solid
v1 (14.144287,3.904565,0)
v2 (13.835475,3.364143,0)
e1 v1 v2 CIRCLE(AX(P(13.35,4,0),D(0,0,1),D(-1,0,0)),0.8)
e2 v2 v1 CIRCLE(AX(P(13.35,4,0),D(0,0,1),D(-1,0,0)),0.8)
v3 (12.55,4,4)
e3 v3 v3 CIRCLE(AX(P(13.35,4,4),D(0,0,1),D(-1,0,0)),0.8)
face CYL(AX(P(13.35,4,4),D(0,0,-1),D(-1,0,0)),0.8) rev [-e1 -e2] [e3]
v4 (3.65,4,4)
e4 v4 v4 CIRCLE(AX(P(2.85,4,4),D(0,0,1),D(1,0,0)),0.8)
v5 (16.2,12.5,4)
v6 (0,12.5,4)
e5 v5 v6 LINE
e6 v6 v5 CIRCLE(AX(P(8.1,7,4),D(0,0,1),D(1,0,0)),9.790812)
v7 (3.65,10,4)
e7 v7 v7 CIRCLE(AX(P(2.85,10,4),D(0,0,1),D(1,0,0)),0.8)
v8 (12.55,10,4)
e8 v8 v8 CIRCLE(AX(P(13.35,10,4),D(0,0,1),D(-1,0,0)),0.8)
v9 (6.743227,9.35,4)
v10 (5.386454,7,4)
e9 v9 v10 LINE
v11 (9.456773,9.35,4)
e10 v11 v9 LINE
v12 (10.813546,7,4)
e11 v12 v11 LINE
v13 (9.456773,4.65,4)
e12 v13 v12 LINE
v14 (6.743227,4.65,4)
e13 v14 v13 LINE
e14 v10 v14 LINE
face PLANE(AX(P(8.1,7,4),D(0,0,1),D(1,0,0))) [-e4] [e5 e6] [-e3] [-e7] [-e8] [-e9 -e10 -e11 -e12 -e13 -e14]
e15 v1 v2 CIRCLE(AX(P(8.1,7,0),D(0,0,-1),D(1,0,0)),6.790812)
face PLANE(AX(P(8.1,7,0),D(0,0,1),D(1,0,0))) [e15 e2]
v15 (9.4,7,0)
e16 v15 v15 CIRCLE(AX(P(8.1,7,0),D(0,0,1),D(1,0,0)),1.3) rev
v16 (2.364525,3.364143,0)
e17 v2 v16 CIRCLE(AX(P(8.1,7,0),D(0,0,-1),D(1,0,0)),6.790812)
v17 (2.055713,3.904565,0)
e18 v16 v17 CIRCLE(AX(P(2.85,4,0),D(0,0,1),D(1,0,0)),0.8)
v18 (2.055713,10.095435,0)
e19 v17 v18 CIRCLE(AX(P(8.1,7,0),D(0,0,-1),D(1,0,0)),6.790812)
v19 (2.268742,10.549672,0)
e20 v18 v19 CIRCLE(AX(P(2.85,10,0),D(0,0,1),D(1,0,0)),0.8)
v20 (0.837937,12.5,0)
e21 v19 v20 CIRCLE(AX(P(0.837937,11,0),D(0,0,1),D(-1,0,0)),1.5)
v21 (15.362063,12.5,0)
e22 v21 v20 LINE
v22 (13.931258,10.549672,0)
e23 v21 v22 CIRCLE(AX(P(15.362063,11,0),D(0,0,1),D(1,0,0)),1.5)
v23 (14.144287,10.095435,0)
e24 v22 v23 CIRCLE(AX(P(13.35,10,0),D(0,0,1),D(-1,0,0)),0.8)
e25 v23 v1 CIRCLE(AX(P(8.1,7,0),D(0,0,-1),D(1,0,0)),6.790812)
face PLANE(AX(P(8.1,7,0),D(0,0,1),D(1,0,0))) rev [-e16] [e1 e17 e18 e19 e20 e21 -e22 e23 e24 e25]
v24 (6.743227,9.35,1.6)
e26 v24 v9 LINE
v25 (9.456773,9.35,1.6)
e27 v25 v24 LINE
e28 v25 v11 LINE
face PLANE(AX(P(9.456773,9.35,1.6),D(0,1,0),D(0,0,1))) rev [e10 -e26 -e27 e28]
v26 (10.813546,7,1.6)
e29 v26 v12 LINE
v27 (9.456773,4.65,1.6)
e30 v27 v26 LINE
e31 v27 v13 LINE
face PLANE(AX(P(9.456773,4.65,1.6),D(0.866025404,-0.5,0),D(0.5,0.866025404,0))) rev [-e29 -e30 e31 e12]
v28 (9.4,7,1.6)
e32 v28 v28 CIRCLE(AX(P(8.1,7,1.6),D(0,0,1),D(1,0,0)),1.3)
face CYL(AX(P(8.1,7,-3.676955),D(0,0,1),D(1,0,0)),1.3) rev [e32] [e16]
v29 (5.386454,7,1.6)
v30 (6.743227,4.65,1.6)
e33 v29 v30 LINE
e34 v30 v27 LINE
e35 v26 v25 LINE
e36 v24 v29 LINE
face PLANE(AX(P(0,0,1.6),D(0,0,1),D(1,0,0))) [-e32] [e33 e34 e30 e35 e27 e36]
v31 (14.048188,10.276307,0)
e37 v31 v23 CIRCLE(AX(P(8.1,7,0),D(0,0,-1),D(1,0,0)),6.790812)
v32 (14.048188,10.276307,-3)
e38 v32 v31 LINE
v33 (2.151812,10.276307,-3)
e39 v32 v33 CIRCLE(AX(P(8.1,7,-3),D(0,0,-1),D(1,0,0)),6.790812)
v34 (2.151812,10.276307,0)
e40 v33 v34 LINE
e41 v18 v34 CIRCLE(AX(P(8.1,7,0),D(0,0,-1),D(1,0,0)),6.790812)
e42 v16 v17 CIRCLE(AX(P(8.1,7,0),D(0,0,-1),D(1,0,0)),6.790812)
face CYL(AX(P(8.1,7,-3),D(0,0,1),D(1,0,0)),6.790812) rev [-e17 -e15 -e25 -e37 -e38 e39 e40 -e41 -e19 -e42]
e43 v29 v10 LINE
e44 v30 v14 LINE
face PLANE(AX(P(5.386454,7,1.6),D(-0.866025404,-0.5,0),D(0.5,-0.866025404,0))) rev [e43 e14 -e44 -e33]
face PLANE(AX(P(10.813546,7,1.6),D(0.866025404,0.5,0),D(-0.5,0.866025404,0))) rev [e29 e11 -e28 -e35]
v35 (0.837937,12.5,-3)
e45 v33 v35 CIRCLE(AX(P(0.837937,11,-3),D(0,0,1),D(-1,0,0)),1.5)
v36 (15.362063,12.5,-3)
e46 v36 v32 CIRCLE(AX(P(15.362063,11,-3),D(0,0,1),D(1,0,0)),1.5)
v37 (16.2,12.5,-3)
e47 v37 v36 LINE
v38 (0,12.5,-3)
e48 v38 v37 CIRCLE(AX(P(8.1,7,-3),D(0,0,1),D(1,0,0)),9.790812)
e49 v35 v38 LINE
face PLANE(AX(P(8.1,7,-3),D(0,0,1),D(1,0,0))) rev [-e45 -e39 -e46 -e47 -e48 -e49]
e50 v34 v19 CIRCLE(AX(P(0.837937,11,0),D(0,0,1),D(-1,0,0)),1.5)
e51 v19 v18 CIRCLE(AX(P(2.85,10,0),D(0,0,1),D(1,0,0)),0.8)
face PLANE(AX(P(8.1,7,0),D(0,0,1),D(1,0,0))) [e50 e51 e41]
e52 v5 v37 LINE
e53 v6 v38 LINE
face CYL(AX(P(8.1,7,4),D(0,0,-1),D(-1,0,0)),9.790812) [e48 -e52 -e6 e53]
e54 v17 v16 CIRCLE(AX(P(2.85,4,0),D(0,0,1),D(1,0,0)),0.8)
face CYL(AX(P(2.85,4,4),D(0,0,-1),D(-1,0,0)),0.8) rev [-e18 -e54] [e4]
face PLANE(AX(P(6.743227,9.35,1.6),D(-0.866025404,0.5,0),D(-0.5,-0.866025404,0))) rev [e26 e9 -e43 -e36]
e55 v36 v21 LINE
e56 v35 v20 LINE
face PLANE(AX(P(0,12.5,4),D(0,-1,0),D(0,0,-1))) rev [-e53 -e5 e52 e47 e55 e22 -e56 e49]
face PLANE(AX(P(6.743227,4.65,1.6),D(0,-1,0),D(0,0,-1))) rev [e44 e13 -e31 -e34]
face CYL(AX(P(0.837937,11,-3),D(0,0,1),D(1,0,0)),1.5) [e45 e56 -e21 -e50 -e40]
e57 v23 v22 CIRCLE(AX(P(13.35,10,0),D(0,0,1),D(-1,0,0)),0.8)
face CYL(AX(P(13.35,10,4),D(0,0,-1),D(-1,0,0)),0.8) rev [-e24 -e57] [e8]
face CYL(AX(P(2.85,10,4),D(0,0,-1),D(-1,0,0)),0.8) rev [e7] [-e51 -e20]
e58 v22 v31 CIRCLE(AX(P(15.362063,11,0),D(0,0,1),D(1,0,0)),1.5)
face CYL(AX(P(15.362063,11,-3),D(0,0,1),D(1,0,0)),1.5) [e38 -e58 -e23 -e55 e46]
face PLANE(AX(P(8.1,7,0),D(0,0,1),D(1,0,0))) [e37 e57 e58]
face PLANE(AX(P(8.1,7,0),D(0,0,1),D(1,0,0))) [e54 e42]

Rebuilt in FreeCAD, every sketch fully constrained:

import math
import FreeCAD as App
import Part
import Sketcher

V = App.Vector
Q = App.Units.Quantity


def add_polygon(sketch, points):
    """Adds a closed chain of lines whose ends are joined by coincident constraints."""
    first, n = sketch.GeometryCount, len(points)
    for a, b in zip(points, points[1:] + points[:1]):
        sketch.addGeometry(Part.LineSegment(App.Vector(*a, 0), App.Vector(*b, 0)), False)
    for i in range(n):
        sketch.addConstraint(Sketcher.Constraint("Coincident", first + i, 2, first + (i + 1) % n, 1))

doc = App.newDocument("Part")
body = doc.addObject("PartDesign::Body", "Body")

sketch1 = body.newObject("Sketcher::SketchObject", "Sketch")
sketch1.AttachmentSupport = (doc.getObject("XY_Plane"), [""])
sketch1.MapMode = "FlatFace"
sketch1.addGeometry([
    Part.LineSegment(V(16.2, 12.5, 0), V(0, 12.5, 0)),
    Part.ArcOfCircle(Part.Circle(V(8.1, 7, 0), V(0, 0, 1), 9.8), math.radians(146), math.radians(394)),
    Part.Circle(V(13.3, 4, 0), V(0, 0, 1), 0.8),
    Part.Circle(V(2.9, 4, 0), V(0, 0, 1), 0.8),
    Part.Circle(V(13.3, 10, 0), V(0, 0, 1), 0.8),
    Part.Circle(V(2.9, 10, 0), V(0, 0, 1), 0.8),
], False)
sketch1.addConstraint([
    Sketcher.Constraint("Coincident", 0, 1, 1, 2),
    Sketcher.Constraint("Coincident", 1, 1, 0, 2),
    Sketcher.Constraint("Horizontal", 0),
    Sketcher.Constraint("Equal", 2, 3),
    Sketcher.Constraint("Equal", 3, 4),
    Sketcher.Constraint("Equal", 4, 5),
    Sketcher.Constraint("PointOnObject", 1, 1, -2),
    Sketcher.Constraint("Horizontal", 2, 3, 3, 3),
    Sketcher.Constraint("Horizontal", 4, 3, 5, 3),
    Sketcher.Constraint("Vertical", 2, 3, 4, 3),
    Sketcher.Constraint("Vertical", 3, 3, 5, 3),
    Sketcher.Constraint("Diameter", 2, 1.6),
    Sketcher.Constraint("DistanceX", 0, 2, 0, 1, 16.2),
    Sketcher.Constraint("DistanceY", -1, 1, 1, 3, 7.0),
    Sketcher.Constraint("DistanceY", -1, 1, 2, 3, 4.0),
    Sketcher.Constraint("DistanceY", -1, 1, 4, 3, 10.0),
    Sketcher.Constraint("DistanceY", -1, 1, 0, 1, 12.5),
    Sketcher.Constraint("DistanceX", 3, 3, 2, 3, 10.5),
    Sketcher.Constraint("DistanceX", -1, 1, 2, 3, 13.35),
])
pad1 = body.newObject("PartDesign::Pad", "Pad")
pad1.Profile = sketch1
pad1.Length = 4

sketch2 = body.newObject("Sketcher::SketchObject", "Sketch001")
sketch2.AttachmentSupport = (doc.getObject("XY_Plane"), [""])
sketch2.MapMode = "FlatFace"
sketch2.AttachmentOffset = App.Placement(V(0, 0, 4), App.Rotation())
add_polygon(sketch2, [(10.8, 7), (9.5, 9.3), (6.7, 9.3), (5.4, 7), (6.7, 4.7), (9.5, 4.7)])
sketch2.addConstraint([
    Sketcher.Constraint("Horizontal", 1),
    Sketcher.Constraint("Horizontal", 4),
    Sketcher.Constraint("Parallel", 0, 3),
    Sketcher.Constraint("Parallel", 2, 5),
    Sketcher.Constraint("Horizontal", 2, 2, 5, 2),
    Sketcher.Constraint("Vertical", 1, 2, 3, 2),
    Sketcher.Constraint("Vertical", 0, 2, 4, 2),
    Sketcher.Constraint("Angle", 0, Q("120 deg")),
    Sketcher.Constraint("DistanceY", -1, 1, 2, 2, 7.0),
    Sketcher.Constraint("DistanceY", 3, 2, 1, 2, 4.7),
    Sketcher.Constraint("DistanceX", 1, 2, 1, 1, 2.713546),
    Sketcher.Constraint("DistanceX", -1, 1, 0, 2, 9.456773),
])
pocket1 = body.newObject("PartDesign::Pocket", "Pocket")
pocket1.Profile = sketch2
pocket1.Length = 2.4

sketch3 = body.newObject("Sketcher::SketchObject", "Sketch002")
sketch3.AttachmentSupport = (doc.getObject("XY_Plane"), [""])
sketch3.MapMode = "FlatFace"
sketch3.AttachmentOffset = App.Placement(V(0, 0, 4), App.Rotation())
sketch3.addGeometry(Part.Circle(V(8.1, 7, 0), V(0, 0, 1), 1.3), False)
sketch3.addConstraint([
    Sketcher.Constraint("Diameter", 0, 2.6),
    Sketcher.Constraint("DistanceY", -1, 1, 0, 3, 7.0),
    Sketcher.Constraint("DistanceX", -1, 1, 0, 3, 8.1),
])
pocket2 = body.newObject("PartDesign::Pocket", "Pocket001")
pocket2.Profile = sketch3
pocket2.Length = 4

sketch4 = body.newObject("Sketcher::SketchObject", "Sketch003")
sketch4.AttachmentSupport = (doc.getObject("XY_Plane"), [""])
sketch4.MapMode = "FlatFace"
sketch4.addGeometry([
    Part.LineSegment(V(16.2, 12.5, 0), V(15.4, 12.5, 0)),
    Part.ArcOfCircle(Part.Circle(V(15.4, 11, 0), V(0, 0, 1), 1.5), math.radians(90), math.radians(209)),
    Part.ArcOfCircle(Part.Circle(V(8.1, 7, 0), V(0, 0, 1), 6.8), math.radians(151), math.radians(389)),
    Part.ArcOfCircle(Part.Circle(V(0.8, 11, 0), V(0, 0, 1), 1.5), math.radians(-29), math.radians(90)),
    Part.LineSegment(V(0.8, 12.5, 0), V(0, 12.5, 0)),
    Part.ArcOfCircle(Part.Circle(V(8.1, 7, 0), V(0, 0, 1), 9.8), math.radians(146), math.radians(394)),
], False)
sketch4.addConstraint([
    Sketcher.Constraint("Tangent", 0, 2, 1, 1),
    Sketcher.Constraint("Tangent", 1, 2, 2, 2),
    Sketcher.Constraint("Tangent", 2, 1, 3, 1),
    Sketcher.Constraint("Tangent", 3, 2, 4, 1),
    Sketcher.Constraint("Coincident", 4, 2, 5, 1),
    Sketcher.Constraint("Coincident", 5, 2, 0, 1),
    Sketcher.Constraint("Horizontal", 0),
    Sketcher.Constraint("Horizontal", 4),
    Sketcher.Constraint("Coincident", 5, 3, 2, 3),
    Sketcher.Constraint("Equal", 1, 3),
    Sketcher.Constraint("PointOnObject", 4, 2, -2),
    Sketcher.Constraint("Horizontal", 1, 3, 3, 3),
    Sketcher.Constraint("Radius", 1, 1.5),
    Sketcher.Constraint("DistanceY", -1, 1, 1, 3, 11.0),
    Sketcher.Constraint("DistanceY", -1, 1, 2, 3, 7.0),
    Sketcher.Constraint("DistanceX", -1, 1, 2, 3, 8.1),
    Sketcher.Constraint("Radius", 2, 6.790812),
])
pad2 = body.newObject("PartDesign::Pad", "Pad001")
pad2.Profile = sketch4
pad2.Length = 3
pad2.Reversed = True

doc.recompute()
